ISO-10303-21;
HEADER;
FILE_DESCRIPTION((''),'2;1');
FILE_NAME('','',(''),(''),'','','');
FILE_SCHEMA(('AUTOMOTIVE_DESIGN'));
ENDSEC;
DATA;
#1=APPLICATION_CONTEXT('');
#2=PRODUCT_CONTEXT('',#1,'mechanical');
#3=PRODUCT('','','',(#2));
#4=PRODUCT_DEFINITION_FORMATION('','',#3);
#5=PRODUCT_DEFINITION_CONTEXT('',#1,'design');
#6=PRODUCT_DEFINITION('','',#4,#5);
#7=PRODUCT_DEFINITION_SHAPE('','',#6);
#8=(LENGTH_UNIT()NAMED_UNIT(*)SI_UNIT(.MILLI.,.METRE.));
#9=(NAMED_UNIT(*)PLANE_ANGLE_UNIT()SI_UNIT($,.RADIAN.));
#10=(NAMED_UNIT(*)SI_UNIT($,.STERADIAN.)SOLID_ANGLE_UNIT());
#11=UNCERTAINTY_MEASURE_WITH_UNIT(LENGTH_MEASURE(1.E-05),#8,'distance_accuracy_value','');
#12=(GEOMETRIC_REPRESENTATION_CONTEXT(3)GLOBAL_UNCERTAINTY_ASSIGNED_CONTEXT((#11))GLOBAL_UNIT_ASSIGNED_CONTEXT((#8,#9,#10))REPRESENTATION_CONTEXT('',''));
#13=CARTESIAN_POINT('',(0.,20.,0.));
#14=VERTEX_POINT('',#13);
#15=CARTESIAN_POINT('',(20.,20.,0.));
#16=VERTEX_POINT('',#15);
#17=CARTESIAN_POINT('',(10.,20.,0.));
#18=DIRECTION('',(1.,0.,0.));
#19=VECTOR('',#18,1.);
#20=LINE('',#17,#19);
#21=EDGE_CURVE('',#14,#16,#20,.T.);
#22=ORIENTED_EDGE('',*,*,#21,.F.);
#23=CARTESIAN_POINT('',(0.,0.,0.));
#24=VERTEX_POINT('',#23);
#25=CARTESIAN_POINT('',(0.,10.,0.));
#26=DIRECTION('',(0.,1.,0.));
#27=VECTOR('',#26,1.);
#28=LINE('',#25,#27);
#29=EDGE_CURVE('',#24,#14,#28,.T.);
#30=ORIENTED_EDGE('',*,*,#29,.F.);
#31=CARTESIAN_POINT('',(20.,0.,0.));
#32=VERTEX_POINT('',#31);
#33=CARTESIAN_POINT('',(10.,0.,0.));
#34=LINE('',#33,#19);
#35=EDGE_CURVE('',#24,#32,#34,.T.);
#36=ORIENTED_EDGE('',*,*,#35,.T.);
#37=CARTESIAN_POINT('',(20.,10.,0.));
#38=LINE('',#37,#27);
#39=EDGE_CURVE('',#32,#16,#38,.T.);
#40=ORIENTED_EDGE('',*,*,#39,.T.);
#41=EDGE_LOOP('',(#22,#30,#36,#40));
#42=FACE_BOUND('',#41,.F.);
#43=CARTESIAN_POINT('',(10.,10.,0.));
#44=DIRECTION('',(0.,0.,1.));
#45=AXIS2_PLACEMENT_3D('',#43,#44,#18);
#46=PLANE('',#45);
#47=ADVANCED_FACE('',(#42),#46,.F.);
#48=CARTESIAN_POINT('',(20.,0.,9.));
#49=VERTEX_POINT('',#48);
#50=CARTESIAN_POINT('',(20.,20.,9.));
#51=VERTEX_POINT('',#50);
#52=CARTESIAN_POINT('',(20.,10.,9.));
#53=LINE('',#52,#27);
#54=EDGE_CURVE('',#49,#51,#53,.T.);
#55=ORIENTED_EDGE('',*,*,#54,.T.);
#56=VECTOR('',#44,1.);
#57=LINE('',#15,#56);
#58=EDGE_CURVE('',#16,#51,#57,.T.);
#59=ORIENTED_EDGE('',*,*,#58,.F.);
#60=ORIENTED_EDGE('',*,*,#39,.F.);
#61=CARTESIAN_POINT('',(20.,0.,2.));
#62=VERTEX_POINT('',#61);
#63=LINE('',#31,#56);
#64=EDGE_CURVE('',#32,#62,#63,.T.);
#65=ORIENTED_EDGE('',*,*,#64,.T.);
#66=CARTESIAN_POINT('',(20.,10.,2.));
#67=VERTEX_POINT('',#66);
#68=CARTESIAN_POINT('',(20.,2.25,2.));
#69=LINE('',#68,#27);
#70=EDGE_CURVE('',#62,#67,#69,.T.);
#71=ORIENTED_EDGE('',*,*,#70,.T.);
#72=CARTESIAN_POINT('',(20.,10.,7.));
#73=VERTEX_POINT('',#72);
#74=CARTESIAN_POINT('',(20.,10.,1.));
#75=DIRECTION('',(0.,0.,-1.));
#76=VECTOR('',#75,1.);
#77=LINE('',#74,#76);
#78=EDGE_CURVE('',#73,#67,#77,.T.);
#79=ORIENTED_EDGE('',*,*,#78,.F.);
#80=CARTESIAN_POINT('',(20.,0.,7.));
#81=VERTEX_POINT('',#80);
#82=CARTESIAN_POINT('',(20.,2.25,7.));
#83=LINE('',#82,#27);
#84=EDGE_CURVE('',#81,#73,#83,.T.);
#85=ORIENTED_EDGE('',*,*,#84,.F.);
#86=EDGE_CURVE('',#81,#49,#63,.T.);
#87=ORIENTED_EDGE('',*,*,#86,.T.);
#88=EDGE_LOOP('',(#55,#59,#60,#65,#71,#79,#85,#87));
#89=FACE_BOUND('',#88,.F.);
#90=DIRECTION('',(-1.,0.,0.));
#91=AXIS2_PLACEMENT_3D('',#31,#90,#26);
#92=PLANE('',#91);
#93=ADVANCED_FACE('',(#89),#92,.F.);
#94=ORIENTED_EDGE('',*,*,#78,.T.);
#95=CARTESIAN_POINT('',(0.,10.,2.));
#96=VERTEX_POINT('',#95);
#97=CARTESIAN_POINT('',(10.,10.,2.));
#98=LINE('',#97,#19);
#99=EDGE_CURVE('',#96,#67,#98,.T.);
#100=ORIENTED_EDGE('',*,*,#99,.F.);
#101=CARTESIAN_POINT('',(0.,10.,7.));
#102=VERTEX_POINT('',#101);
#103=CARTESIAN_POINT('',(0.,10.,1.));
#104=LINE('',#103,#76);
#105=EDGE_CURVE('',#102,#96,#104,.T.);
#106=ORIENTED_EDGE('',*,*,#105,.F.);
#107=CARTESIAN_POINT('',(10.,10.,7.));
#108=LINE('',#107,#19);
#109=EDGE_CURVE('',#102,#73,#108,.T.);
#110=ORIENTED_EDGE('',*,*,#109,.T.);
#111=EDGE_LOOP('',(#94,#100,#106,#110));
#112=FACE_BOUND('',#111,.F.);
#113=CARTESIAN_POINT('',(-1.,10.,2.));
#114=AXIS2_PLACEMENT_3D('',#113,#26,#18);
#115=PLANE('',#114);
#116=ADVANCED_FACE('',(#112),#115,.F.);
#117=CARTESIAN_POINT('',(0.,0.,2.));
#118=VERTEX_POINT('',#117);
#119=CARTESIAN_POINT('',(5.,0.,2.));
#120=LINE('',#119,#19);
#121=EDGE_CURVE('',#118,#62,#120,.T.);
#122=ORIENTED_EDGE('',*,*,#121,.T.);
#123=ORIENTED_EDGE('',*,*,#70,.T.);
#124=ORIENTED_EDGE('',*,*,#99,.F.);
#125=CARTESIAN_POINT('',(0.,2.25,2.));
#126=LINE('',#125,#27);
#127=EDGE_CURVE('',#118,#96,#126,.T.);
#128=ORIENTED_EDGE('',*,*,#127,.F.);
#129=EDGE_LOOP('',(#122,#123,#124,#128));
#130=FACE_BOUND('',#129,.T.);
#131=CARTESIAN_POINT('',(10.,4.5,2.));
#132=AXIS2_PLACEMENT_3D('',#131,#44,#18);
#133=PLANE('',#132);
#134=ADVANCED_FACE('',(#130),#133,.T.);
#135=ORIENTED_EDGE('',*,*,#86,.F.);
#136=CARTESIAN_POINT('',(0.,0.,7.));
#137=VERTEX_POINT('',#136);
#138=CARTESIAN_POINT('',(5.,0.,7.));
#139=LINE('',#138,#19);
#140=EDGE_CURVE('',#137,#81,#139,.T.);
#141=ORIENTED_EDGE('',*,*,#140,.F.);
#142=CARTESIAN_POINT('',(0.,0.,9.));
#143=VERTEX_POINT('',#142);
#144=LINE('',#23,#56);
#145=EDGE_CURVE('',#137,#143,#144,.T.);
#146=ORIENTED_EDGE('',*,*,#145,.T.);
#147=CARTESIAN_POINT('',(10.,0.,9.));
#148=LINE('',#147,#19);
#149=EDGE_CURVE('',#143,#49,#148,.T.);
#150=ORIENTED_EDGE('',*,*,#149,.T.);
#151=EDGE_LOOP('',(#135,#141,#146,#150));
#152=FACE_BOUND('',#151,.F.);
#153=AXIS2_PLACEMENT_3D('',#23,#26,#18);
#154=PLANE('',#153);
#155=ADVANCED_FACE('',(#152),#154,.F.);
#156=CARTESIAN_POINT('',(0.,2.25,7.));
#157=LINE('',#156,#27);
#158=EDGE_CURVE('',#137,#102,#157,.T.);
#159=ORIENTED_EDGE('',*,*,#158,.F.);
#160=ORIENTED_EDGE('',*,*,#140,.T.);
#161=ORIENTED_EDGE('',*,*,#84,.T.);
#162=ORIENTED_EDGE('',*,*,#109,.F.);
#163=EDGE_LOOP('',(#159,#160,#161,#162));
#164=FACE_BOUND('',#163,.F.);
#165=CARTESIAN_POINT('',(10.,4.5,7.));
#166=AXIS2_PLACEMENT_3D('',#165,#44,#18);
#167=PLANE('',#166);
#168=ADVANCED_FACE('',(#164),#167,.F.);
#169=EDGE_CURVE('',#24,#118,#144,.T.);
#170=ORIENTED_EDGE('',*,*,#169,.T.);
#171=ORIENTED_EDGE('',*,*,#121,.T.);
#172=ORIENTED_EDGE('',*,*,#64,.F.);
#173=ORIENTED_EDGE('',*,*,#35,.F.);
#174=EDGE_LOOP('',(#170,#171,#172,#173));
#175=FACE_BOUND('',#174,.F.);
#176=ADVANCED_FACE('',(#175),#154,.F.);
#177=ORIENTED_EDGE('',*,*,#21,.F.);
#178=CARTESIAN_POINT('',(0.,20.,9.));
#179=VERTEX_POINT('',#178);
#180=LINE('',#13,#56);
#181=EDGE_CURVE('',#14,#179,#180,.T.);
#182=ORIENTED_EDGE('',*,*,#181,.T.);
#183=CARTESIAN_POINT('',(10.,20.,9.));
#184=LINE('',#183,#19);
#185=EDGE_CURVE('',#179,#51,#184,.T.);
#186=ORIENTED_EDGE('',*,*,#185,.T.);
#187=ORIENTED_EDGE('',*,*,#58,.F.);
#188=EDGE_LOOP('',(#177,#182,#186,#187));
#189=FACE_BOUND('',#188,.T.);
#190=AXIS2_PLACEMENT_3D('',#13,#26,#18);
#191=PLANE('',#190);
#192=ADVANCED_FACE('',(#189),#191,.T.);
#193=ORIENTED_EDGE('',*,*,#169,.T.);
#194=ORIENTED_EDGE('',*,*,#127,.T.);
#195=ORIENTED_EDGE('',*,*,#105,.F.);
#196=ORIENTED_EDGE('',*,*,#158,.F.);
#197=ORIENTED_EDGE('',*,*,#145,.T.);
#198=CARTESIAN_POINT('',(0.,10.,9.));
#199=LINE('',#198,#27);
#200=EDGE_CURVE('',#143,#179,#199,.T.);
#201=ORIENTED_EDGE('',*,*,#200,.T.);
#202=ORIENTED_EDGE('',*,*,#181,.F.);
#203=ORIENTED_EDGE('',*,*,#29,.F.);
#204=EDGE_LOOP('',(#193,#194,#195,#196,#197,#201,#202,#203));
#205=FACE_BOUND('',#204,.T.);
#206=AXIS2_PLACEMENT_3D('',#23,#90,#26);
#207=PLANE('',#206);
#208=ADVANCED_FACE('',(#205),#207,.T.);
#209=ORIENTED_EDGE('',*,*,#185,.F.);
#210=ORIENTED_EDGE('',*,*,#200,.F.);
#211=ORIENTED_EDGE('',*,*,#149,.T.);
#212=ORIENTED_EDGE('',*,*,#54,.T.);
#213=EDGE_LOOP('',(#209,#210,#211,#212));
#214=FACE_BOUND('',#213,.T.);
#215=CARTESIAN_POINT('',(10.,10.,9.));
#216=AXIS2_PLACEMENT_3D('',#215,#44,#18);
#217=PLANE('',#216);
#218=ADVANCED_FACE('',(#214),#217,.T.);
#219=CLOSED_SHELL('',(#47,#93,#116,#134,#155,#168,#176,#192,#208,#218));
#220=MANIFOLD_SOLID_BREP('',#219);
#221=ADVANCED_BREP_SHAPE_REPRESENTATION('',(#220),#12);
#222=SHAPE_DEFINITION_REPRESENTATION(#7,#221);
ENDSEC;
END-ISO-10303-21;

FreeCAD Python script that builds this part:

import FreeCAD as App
import Part
import Sketcher

V = App.Vector
Q = App.Units.Quantity


def add_polygon(sketch, points):
    """Adds a closed chain of lines whose ends are joined by coincident constraints."""
    first, n = sketch.GeometryCount, len(points)
    for a, b in zip(points, points[1:] + points[:1]):
        sketch.addGeometry(Part.LineSegment(App.Vector(*a, 0), App.Vector(*b, 0)), False)
    for i in range(n):
        sketch.addConstraint(Sketcher.Constraint("Coincident", first + i, 2, first + (i + 1) % n, 1))

doc = App.newDocument("Part")
body = doc.addObject("PartDesign::Body", "Body")

# Sketch on XY plane
sketch1 = doc.addObject("Sketcher::SketchObject", "Sketch")
body.addObject(sketch1)
sketch1.AttachmentSupport = (doc.XY_Plane, [""])
sketch1.MapMode = "FlatFace"
sketch1.AttachmentOffset = App.Placement(V(0, 0, 2), App.Rotation())
add_polygon(sketch1, [(-1, 10), (-1, -1), (21, -1), (21, 10)])  # lines 0-3
sketch1.addConstraint(Sketcher.Constraint("Vertical", 0))
sketch1.addConstraint(Sketcher.Constraint("Horizontal", 1))
sketch1.addConstraint(Sketcher.Constraint("Vertical", 2))
sketch1.addConstraint(Sketcher.Constraint("Horizontal", 3))
sketch1.addConstraint(Sketcher.Constraint("DistanceX", 1, 1, 1, 2, Q("22 mm")))
sketch1.addConstraint(Sketcher.Constraint("DistanceY", 0, 2, 0, 1, Q("11 mm")))
sketch1.addConstraint(Sketcher.Constraint("DistanceX", 0, 2, -1, 1, Q("1 mm")))
sketch1.addConstraint(Sketcher.Constraint("DistanceY", 0, 2, -1, 1, Q("1 mm")))
pad1 = doc.addObject("PartDesign::Pad", "Pad")
body.addObject(pad1)
pad1.Profile = sketch1
pad1.Length = 5
body2 = doc.addObject("PartDesign::Body", "Body001")

# Sketch on XY plane
sketch2 = doc.addObject("Sketcher::SketchObject", "Sketch001")
body2.addObject(sketch2)
sketch2.AttachmentSupport = (doc.getObject("XY_Plane001"), [""])
sketch2.MapMode = "FlatFace"
add_polygon(sketch2, [(0, 20), (0, 0), (20, 0), (20, 20)])  # lines 0-3
sketch2.addConstraint(Sketcher.Constraint("Vertical", 0))
sketch2.addConstraint(Sketcher.Constraint("Horizontal", 1))
sketch2.addConstraint(Sketcher.Constraint("Vertical", 2))
sketch2.addConstraint(Sketcher.Constraint("Horizontal", 3))
sketch2.addConstraint(Sketcher.Constraint("Coincident", 0, 2, -1, 1))
sketch2.addConstraint(Sketcher.Constraint("Equal", 3, 0))
sketch2.addConstraint(Sketcher.Constraint("DistanceX", 1, 1, 1, 2, Q("20 mm")))
pad2 = doc.addObject("PartDesign::Pad", "Pad001")
body2.addObject(pad2)
pad2.Profile = sketch2
pad2.Length = 9
doc.recompute()

boolean = doc.addObject("PartDesign::Boolean", "Boolean")
body2.addObject(boolean)
boolean.Type = "Cut"
boolean.addObjects([body])

doc.recompute()
